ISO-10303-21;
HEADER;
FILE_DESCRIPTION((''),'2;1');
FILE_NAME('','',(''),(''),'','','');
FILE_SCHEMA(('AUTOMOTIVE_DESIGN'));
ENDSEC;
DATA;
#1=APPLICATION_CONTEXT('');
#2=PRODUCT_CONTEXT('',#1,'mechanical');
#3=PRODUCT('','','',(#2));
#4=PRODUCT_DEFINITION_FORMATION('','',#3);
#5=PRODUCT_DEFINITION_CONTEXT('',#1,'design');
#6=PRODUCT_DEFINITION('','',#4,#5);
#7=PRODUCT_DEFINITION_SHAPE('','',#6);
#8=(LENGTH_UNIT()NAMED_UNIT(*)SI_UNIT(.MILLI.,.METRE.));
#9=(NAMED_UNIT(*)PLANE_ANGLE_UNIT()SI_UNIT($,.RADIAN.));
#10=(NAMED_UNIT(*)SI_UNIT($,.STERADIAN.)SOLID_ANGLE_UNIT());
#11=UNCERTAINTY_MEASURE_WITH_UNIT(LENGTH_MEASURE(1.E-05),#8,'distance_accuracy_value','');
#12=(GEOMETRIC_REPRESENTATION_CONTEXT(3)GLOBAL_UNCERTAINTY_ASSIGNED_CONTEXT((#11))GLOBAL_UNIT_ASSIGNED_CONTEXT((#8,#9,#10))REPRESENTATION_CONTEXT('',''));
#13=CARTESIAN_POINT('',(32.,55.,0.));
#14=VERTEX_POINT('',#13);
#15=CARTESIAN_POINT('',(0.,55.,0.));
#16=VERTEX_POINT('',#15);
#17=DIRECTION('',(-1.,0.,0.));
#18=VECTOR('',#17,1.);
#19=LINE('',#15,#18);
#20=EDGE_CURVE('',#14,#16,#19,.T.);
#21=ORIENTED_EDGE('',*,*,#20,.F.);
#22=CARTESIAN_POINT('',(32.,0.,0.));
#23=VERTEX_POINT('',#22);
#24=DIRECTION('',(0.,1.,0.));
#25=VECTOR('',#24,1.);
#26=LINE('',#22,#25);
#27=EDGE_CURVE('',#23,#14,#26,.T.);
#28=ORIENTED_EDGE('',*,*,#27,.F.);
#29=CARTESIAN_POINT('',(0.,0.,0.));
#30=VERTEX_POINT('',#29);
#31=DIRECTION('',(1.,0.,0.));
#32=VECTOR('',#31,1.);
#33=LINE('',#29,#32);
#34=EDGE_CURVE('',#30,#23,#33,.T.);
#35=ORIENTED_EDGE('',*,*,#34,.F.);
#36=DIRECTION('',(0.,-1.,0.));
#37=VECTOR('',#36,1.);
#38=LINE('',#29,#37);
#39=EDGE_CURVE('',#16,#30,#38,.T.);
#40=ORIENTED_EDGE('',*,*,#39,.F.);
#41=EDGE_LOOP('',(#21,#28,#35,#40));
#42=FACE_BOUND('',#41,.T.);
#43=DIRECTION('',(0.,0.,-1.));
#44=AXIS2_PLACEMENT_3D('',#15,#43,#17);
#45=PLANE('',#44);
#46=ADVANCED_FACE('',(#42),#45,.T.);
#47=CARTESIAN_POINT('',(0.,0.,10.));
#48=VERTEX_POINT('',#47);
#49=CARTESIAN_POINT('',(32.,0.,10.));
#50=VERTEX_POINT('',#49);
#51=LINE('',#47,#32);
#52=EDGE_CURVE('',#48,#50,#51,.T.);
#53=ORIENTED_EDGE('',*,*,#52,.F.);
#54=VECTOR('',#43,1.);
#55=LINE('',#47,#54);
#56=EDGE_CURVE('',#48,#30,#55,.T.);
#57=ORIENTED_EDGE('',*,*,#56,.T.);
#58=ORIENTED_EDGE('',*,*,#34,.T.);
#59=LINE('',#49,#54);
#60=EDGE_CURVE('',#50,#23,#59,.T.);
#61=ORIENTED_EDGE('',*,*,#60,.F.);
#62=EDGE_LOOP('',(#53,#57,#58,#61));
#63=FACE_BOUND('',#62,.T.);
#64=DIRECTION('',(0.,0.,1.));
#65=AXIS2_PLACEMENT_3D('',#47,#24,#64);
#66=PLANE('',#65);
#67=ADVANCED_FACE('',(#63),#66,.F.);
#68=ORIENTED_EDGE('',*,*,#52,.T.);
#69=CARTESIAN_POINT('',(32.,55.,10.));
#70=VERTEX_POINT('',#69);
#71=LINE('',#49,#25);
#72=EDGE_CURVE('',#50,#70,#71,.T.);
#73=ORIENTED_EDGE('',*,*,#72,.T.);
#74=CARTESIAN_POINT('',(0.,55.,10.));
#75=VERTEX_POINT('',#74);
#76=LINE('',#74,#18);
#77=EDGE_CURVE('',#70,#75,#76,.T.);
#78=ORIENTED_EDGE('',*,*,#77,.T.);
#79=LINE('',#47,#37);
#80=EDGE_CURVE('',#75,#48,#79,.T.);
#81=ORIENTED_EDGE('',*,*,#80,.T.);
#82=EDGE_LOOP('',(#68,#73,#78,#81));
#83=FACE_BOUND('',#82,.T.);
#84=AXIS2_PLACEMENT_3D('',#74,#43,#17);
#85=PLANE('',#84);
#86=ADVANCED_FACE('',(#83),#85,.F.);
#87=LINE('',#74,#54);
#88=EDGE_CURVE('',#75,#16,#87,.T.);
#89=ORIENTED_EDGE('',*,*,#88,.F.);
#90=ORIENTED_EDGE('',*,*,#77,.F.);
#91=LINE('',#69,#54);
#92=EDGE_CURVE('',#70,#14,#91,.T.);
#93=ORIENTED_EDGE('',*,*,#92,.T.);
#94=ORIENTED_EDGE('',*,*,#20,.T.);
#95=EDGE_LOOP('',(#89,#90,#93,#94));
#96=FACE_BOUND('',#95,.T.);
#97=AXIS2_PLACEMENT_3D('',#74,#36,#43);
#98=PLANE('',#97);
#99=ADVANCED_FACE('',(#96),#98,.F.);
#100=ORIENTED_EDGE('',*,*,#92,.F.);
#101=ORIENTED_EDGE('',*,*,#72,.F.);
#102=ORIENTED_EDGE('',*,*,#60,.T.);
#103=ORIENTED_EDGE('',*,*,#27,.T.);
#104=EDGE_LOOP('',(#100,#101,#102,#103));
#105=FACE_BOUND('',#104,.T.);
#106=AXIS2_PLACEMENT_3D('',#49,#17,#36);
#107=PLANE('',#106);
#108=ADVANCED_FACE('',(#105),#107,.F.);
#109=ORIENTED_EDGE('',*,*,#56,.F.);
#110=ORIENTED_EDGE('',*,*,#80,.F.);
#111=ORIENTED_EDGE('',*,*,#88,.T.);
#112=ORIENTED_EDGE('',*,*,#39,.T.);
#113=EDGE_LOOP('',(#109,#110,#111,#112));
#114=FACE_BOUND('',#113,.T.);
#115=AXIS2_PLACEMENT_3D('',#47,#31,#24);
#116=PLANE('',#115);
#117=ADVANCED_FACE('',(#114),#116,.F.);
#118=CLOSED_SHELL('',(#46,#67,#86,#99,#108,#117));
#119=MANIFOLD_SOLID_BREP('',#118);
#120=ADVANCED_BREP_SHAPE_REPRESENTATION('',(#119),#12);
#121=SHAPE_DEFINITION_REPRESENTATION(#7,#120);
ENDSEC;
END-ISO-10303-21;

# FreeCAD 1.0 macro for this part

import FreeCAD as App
import Part
import Sketcher

V = App.Vector
Q = App.Units.Quantity

doc = App.newDocument("Part")
params = doc.addObject("Spreadsheet::Sheet", "Params")
for row, (alias, value) in enumerate([
    ("sketch1_width", "32 mm"),
    ("sketch1_height", "55 mm"),
    ("pad1_length", "10 mm"),
], start=1):
    params.set(f"A{row}", alias)
    params.set(f"B{row}", "=" + value)
    params.setAlias(f"B{row}", alias)

body = doc.addObject("PartDesign::Body", "Body")

sketch1 = doc.addObject("Sketcher::SketchObject", "Sketch")
body.addObject(sketch1)
sketch1.AttachmentSupport = (doc.XY_Plane, [""])
sketch1.MapMode = "FlatFace"
sketch1.addGeometry([
    Part.LineSegment(V(0, 55, 0), V(0, 0, 0)),
    Part.LineSegment(V(0, 0, 0), V(32, 0, 0)),
    Part.LineSegment(V(32, 0, 0), V(32, 55, 0)),
    Part.LineSegment(V(32, 55, 0), V(0, 55, 0)),
], False)
sketch1.addConstraint([
    Sketcher.Constraint("Coincident", 0, 2, 1, 1),
    Sketcher.Constraint("Coincident", 1, 2, 2, 1),
    Sketcher.Constraint("Coincident", 2, 2, 3, 1),
    Sketcher.Constraint("Coincident", 3, 2, 0, 1),
    Sketcher.Constraint("Vertical", 0),
    Sketcher.Constraint("Horizontal", 1),
    Sketcher.Constraint("Vertical", 2),
    Sketcher.Constraint("Horizontal", 3),
    Sketcher.Constraint("Coincident", 0, 2, -1, 1),
    Sketcher.Constraint("DistanceX", 1, 1, 1, 2, Q("32 mm")),
    Sketcher.Constraint("DistanceY", 0, 2, 0, 1, Q("55 mm")),
])
sketch1.setExpression("Constraints[9]", "Params.sketch1_width")
sketch1.setExpression("Constraints[10]", "Params.sketch1_height")
pad1 = doc.addObject("PartDesign::Pad", "Pad")
body.addObject(pad1)
pad1.Profile = sketch1
pad1.setExpression("Length", "Params.pad1_length")

doc.recompute()
